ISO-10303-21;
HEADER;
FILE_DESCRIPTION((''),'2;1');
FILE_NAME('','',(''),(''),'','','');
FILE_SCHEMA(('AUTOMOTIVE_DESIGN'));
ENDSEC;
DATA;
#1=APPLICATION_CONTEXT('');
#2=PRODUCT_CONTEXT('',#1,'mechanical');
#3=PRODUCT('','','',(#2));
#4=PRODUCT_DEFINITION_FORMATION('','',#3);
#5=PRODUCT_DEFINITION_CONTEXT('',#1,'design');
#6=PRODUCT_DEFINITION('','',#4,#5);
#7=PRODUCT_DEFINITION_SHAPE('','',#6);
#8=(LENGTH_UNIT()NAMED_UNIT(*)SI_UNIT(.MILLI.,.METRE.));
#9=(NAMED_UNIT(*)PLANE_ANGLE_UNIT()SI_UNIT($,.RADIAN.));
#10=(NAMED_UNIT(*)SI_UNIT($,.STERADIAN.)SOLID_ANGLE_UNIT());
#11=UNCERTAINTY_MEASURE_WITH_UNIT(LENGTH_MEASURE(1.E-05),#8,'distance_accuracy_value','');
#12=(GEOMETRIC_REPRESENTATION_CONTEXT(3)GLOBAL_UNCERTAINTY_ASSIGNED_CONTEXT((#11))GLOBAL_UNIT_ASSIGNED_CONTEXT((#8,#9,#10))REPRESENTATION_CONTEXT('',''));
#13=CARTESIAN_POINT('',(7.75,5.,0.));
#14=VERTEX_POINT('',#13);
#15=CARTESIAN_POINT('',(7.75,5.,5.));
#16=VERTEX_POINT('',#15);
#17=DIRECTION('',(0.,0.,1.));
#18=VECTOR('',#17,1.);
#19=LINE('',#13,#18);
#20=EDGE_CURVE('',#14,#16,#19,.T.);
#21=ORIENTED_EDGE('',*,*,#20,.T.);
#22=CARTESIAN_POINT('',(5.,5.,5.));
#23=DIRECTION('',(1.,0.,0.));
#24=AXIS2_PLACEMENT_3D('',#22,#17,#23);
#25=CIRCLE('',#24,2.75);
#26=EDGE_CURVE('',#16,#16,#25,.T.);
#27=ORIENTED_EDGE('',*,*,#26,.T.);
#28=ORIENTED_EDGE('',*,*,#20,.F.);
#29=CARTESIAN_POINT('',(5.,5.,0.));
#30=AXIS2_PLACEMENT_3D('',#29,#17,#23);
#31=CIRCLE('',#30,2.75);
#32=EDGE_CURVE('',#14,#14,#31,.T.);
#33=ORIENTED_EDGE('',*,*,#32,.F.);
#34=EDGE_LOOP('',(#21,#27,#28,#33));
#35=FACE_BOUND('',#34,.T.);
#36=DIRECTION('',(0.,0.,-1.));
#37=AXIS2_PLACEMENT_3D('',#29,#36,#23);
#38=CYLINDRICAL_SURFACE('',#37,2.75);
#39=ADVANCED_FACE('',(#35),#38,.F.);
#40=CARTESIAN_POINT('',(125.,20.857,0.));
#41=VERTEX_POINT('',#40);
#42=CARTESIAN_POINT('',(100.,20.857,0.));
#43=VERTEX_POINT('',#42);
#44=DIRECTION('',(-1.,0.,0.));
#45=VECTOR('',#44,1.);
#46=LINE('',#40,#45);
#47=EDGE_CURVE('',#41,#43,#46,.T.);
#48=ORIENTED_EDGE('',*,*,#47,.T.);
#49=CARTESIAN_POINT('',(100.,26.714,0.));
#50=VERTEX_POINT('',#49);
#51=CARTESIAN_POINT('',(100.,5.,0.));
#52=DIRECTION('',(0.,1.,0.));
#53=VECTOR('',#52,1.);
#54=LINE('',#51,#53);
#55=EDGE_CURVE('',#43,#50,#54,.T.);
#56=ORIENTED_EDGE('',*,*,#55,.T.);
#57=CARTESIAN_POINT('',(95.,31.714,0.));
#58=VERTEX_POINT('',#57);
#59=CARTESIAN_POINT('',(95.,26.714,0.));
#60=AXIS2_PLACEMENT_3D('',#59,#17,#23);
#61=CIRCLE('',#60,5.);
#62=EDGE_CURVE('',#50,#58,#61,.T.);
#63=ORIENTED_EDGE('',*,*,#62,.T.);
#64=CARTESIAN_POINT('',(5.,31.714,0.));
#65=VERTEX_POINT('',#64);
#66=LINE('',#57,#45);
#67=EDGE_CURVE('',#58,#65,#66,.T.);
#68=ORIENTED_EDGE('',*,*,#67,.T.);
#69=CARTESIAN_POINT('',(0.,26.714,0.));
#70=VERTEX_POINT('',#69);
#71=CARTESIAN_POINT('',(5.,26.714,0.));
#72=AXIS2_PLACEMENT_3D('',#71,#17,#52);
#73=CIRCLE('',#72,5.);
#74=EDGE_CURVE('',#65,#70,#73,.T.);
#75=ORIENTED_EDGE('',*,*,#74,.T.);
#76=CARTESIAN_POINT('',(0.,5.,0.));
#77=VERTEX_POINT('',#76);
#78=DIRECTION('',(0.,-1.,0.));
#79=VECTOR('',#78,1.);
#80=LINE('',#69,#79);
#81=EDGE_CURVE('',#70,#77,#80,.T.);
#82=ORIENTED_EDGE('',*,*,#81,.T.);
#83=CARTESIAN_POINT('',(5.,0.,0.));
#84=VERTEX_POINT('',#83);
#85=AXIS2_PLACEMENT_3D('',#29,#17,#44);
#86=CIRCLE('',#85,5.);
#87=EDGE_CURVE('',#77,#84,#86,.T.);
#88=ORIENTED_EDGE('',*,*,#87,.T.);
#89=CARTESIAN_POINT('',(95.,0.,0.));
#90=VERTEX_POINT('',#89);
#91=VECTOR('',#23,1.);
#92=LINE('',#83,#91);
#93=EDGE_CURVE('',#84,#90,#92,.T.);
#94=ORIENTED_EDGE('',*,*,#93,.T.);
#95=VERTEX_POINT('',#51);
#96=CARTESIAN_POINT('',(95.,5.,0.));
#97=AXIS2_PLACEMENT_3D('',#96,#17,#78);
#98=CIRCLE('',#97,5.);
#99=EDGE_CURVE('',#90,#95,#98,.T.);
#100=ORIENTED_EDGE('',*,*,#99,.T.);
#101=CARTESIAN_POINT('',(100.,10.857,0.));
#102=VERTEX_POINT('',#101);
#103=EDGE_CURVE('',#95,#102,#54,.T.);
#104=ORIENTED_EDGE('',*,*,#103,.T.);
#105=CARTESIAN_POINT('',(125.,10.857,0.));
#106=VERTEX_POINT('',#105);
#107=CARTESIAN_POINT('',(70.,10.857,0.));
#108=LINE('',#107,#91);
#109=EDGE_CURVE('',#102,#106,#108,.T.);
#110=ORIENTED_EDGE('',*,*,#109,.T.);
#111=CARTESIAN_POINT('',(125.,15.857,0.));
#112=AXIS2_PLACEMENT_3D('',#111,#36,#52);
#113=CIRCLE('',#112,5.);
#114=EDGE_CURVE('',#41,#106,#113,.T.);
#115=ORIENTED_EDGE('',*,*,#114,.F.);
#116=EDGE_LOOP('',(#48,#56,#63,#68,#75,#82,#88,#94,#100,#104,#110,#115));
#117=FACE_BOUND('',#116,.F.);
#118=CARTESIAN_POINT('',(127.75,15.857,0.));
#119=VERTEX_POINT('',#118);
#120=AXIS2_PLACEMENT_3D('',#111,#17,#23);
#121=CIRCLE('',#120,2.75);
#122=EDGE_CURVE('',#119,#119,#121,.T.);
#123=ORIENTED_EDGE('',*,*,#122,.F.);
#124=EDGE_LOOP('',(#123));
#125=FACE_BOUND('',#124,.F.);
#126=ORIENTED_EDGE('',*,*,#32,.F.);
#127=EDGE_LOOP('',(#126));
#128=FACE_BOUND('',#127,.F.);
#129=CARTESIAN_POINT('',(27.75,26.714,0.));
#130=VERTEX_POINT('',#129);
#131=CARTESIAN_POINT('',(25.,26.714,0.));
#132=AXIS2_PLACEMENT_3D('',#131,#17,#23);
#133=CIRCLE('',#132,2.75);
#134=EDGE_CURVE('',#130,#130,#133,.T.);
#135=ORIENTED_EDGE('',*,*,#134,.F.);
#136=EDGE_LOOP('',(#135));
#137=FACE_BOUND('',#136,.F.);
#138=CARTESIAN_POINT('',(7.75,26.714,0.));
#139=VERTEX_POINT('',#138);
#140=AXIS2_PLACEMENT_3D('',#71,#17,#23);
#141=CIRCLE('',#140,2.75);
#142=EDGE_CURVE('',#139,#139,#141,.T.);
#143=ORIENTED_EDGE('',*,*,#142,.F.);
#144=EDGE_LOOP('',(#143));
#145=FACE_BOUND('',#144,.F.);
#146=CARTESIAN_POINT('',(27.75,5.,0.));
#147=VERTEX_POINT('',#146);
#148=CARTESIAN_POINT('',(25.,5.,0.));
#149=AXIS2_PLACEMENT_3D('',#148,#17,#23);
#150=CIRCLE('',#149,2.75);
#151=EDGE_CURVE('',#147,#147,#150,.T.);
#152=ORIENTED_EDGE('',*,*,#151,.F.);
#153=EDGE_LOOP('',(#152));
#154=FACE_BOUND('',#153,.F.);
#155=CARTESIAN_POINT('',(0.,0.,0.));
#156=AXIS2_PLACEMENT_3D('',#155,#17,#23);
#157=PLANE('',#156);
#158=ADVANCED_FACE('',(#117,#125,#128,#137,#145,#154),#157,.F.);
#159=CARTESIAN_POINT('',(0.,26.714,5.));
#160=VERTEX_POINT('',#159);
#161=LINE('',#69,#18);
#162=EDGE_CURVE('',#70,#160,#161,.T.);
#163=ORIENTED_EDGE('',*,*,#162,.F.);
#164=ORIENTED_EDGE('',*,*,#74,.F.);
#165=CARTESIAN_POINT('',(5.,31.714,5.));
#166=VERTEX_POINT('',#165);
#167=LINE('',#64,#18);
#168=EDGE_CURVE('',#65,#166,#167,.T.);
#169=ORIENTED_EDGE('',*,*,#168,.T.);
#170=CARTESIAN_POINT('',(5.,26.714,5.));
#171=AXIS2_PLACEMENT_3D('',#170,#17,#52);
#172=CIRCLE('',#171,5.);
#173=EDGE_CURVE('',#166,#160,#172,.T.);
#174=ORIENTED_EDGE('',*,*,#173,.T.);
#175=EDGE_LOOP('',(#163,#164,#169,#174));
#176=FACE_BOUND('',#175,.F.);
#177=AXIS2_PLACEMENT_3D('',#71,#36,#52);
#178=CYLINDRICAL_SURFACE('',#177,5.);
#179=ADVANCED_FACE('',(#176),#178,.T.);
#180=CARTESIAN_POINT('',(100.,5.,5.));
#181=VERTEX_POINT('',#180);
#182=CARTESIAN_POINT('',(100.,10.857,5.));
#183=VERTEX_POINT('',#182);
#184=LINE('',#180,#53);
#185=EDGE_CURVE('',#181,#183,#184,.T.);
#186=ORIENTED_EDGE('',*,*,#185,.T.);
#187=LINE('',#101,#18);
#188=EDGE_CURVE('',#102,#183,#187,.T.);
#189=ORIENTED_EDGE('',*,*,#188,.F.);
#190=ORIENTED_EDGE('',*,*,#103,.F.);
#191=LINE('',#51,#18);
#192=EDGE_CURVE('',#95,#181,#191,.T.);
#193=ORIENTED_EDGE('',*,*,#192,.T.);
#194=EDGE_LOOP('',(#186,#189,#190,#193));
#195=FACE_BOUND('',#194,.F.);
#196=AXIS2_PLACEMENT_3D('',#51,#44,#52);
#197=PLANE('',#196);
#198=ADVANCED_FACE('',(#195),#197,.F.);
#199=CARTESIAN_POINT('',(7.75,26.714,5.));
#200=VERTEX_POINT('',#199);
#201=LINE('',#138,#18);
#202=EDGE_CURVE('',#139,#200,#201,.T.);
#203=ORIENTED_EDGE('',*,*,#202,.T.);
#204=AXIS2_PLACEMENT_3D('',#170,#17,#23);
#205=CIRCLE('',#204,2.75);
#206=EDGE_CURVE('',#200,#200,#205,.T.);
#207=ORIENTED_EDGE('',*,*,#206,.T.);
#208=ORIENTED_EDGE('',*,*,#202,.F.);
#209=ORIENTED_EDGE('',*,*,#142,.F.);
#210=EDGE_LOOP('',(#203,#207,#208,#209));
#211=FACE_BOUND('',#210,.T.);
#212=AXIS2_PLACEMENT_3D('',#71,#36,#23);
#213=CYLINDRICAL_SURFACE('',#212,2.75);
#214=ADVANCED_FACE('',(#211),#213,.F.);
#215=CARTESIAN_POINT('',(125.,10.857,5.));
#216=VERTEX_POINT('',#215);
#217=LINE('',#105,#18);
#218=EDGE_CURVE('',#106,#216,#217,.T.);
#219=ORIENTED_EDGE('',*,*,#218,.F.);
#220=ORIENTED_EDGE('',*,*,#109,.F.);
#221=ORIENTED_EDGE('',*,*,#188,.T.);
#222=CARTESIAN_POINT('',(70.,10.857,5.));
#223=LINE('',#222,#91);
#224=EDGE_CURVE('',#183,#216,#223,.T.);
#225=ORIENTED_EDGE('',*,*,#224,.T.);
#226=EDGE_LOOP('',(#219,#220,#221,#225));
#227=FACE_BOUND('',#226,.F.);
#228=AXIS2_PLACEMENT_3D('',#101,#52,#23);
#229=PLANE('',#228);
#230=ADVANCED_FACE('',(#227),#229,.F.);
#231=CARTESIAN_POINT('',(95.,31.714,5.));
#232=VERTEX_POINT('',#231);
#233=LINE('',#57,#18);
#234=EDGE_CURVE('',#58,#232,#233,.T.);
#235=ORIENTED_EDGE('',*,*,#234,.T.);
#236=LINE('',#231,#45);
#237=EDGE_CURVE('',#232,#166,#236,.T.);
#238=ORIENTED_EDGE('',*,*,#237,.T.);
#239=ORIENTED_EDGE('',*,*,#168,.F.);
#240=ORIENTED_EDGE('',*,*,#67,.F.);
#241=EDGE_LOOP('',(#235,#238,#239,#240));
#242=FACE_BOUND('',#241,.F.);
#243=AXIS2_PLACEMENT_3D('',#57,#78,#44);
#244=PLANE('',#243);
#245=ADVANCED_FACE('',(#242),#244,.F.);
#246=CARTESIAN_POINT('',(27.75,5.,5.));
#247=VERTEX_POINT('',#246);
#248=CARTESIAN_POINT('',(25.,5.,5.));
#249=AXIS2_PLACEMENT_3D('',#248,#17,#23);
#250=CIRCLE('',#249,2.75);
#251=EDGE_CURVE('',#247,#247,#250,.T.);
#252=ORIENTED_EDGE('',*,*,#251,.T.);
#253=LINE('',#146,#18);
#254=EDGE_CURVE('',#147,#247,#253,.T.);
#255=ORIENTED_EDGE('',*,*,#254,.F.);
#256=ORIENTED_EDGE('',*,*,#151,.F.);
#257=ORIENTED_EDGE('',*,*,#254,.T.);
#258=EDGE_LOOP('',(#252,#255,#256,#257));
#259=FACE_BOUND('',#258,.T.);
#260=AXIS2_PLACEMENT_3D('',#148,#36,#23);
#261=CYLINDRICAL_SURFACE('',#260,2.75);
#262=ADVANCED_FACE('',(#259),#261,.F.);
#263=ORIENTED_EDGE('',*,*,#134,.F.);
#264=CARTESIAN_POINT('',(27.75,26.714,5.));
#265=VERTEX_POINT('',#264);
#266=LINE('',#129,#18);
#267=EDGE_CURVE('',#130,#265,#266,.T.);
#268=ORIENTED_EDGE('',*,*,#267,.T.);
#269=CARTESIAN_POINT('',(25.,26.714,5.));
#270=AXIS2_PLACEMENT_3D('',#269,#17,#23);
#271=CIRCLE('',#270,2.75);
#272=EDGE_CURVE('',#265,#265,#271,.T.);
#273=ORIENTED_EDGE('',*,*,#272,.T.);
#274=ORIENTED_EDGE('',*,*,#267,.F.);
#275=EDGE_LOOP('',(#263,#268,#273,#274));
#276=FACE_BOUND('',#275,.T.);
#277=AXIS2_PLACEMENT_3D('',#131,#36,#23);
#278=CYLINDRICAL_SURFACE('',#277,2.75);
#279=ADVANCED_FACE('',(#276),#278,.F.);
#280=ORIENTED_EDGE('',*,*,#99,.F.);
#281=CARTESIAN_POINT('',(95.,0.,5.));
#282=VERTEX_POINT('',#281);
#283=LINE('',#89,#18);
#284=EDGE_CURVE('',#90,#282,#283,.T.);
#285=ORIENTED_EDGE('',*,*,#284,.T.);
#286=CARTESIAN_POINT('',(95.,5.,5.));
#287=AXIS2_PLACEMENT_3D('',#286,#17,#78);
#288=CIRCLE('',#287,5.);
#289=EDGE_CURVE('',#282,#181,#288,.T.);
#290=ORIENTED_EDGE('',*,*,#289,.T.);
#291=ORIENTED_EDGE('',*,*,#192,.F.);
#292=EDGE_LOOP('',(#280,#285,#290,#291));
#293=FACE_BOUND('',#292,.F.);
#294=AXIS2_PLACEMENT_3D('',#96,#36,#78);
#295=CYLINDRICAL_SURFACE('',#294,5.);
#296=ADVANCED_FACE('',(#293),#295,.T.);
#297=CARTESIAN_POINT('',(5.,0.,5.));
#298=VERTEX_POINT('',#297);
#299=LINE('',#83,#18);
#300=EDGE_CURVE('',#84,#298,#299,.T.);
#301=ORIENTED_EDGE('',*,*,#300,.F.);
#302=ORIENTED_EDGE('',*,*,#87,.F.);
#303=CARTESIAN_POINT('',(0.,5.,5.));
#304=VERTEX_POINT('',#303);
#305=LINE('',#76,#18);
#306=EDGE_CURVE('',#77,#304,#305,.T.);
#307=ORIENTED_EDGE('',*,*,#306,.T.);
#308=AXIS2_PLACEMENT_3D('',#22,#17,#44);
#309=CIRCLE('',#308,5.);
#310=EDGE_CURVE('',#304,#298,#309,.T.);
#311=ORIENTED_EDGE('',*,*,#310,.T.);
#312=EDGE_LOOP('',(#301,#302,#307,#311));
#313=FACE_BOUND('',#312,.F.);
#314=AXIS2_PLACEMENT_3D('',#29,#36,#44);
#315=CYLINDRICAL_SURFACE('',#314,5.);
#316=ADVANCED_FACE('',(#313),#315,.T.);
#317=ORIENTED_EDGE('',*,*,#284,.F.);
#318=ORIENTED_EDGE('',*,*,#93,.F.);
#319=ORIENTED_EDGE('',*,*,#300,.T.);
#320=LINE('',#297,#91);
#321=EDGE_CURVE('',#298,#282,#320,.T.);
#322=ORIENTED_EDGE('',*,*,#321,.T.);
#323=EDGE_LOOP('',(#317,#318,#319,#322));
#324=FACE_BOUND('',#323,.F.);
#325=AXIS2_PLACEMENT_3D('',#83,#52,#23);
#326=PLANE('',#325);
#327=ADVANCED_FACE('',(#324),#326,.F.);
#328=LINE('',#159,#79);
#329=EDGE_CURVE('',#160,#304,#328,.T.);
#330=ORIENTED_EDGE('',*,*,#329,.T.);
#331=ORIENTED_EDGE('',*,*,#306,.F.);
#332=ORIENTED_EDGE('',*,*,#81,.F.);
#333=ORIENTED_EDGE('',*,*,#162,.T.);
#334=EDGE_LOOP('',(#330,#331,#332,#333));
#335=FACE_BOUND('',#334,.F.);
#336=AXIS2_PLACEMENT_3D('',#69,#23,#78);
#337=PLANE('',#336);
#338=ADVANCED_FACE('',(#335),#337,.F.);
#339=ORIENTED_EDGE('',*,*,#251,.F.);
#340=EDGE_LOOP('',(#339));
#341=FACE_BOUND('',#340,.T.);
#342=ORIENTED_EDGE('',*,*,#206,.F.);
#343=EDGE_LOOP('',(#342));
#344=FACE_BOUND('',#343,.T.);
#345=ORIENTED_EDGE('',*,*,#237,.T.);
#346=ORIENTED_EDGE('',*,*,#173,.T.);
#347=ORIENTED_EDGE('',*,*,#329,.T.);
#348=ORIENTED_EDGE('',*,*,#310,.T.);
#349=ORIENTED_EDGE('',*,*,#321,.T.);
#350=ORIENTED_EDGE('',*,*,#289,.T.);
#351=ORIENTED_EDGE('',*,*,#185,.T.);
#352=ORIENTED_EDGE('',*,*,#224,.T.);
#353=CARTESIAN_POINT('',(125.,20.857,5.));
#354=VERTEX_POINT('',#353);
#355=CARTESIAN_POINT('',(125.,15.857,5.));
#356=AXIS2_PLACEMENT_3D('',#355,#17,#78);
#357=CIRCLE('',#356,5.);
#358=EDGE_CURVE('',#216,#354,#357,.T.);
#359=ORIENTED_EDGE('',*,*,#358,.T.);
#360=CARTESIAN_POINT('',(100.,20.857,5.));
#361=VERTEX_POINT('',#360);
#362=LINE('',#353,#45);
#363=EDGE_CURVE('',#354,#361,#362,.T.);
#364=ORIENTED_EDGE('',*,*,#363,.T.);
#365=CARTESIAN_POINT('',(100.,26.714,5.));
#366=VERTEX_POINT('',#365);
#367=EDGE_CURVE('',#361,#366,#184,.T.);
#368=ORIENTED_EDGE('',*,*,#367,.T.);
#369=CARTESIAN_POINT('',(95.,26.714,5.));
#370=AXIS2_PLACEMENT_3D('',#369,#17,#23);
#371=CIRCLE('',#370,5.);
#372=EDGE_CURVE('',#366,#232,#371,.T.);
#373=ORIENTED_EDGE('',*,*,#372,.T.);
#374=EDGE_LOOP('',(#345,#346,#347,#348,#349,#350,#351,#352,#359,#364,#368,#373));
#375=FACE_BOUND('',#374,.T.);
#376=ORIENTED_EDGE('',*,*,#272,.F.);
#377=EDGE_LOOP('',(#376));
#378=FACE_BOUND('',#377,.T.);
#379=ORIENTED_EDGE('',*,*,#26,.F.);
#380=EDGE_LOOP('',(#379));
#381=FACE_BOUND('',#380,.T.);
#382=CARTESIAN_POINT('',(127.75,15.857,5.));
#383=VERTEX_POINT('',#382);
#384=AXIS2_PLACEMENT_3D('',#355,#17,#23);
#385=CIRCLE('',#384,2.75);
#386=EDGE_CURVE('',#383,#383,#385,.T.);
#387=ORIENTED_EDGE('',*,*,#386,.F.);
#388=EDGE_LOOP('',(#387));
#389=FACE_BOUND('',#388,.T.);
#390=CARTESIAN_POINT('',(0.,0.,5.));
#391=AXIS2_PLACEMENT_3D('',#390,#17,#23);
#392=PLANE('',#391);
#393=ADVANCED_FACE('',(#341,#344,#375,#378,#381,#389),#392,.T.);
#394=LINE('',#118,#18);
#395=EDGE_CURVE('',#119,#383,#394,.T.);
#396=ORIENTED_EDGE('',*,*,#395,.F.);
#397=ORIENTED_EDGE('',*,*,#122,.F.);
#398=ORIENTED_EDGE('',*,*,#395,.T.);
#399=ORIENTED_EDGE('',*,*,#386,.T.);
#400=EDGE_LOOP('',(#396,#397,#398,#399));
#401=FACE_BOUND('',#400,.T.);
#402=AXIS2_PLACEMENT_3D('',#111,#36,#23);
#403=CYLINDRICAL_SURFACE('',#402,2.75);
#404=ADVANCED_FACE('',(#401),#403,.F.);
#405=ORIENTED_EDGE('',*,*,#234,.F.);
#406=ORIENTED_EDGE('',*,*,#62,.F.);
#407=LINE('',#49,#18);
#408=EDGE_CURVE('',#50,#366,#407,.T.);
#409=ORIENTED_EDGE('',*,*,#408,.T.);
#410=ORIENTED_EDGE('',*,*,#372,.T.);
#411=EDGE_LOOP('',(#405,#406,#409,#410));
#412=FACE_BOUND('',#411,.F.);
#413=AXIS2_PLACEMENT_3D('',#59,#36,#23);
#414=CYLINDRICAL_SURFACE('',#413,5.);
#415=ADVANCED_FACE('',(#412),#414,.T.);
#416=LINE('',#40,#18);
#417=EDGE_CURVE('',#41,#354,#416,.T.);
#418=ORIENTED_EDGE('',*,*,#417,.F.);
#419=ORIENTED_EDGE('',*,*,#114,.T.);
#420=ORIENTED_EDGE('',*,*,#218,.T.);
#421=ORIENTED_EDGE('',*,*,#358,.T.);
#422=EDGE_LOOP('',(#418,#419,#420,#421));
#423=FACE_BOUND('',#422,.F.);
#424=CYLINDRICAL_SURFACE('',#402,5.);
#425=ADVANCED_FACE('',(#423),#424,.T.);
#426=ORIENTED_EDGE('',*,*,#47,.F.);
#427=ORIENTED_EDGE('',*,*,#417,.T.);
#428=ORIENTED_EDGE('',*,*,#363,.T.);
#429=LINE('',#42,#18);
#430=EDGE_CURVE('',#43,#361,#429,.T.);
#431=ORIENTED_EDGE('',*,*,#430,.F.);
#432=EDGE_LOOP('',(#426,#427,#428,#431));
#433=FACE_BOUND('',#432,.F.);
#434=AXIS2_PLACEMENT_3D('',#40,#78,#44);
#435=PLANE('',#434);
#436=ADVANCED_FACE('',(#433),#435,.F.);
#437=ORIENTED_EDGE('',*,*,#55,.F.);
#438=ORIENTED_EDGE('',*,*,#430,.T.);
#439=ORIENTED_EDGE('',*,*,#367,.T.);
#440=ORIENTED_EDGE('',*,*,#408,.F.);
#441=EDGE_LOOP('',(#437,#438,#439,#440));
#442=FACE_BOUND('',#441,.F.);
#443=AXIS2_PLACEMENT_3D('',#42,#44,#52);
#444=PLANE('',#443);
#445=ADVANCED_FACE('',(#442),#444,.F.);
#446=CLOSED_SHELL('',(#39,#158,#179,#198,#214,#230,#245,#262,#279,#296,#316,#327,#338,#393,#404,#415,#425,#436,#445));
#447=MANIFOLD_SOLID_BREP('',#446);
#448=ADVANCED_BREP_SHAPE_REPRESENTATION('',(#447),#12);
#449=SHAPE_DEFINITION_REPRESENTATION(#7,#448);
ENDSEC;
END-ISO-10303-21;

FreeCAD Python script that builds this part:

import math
import FreeCAD as App
import Part
import Sketcher

doc = App.newDocument("Part")
body = doc.addObject("PartDesign::Body", "Body")

sketch1 = body.newObject("Sketcher::SketchObject", "Sketch")
sketch1.AttachmentSupport = (doc.getObject("XY_Plane"), [""])
sketch1.MapMode = "FlatFace"
sketch1.addGeometry([
    Part.ArcOfCircle(Part.Circle(App.Vector(5, 5, 0), App.Vector(0, 0, 1), 5), math.radians(180), math.radians(270)),
    Part.LineSegment(App.Vector(5, 0, 0), App.Vector(95, 0, 0)),
    Part.ArcOfCircle(Part.Circle(App.Vector(95, 5, 0), App.Vector(0, 0, 1), 5), math.radians(-90), math.radians(0)),
    Part.LineSegment(App.Vector(100, 5, 0), App.Vector(100, 10.857, 0)),
    Part.LineSegment(App.Vector(100, 10.857, 0), App.Vector(125, 10.857, 0)),
    Part.ArcOfCircle(Part.Circle(App.Vector(125, 15.857, 0), App.Vector(0, 0, 1), 5), math.radians(-90), math.radians(90)),
    Part.LineSegment(App.Vector(125, 20.857, 0), App.Vector(100, 20.857, 0)),
    Part.LineSegment(App.Vector(100, 20.857, 0), App.Vector(100, 26.714, 0)),
    Part.ArcOfCircle(Part.Circle(App.Vector(95, 26.714, 0), App.Vector(0, 0, 1), 5), math.radians(0), math.radians(90)),
    Part.LineSegment(App.Vector(95, 31.714, 0), App.Vector(5, 31.714, 0)),
    Part.ArcOfCircle(Part.Circle(App.Vector(5, 26.714, 0), App.Vector(0, 0, 1), 5), math.radians(90), math.radians(180)),
    Part.LineSegment(App.Vector(0, 26.714, 0), App.Vector(0, 5, 0)),
    Part.Circle(App.Vector(5, 5, 0), App.Vector(0, 0, 1), 2.75),
    Part.Circle(App.Vector(25, 5, 0), App.Vector(0, 0, 1), 2.75),
    Part.Circle(App.Vector(5, 26.714, 0), App.Vector(0, 0, 1), 2.75),
    Part.Circle(App.Vector(25, 26.714, 0), App.Vector(0, 0, 1), 2.75),
    Part.Circle(App.Vector(125, 15.857, 0), App.Vector(0, 0, 1), 2.75),
], False)
sketch1.addConstraint([
    Sketcher.Constraint("Tangent", 0, 2, 1, 1),
    Sketcher.Constraint("Tangent", 1, 2, 2, 1),
    Sketcher.Constraint("Tangent", 2, 2, 3, 1),
    Sketcher.Constraint("Coincident", 3, 2, 4, 1),
    Sketcher.Constraint("Tangent", 4, 2, 5, 1),
    Sketcher.Constraint("Tangent", 5, 2, 6, 1),
    Sketcher.Constraint("Coincident", 6, 2, 7, 1),
    Sketcher.Constraint("Tangent", 7, 2, 8, 1),
    Sketcher.Constraint("Tangent", 8, 2, 9, 1),
    Sketcher.Constraint("Tangent", 9, 2, 10, 1),
    Sketcher.Constraint("Tangent", 10, 2, 11, 1),
    Sketcher.Constraint("Tangent", 11, 2, 0, 1),
    Sketcher.Constraint("Horizontal", 1),
    Sketcher.Constraint("Vertical", 3),
    Sketcher.Constraint("Horizontal", 4),
    Sketcher.Constraint("Horizontal", 6),
    Sketcher.Constraint("Vertical", 7),
    Sketcher.Constraint("Horizontal", 9),
    Sketcher.Constraint("Vertical", 11),
    Sketcher.Constraint("Coincident", 12, 3, 0, 3),
    Sketcher.Constraint("Coincident", 14, 3, 10, 3),
    Sketcher.Constraint("Coincident", 16, 3, 5, 3),
    Sketcher.Constraint("Equal", 0, 2),
    Sketcher.Constraint("Equal", 2, 5),
    Sketcher.Constraint("Equal", 5, 8),
    Sketcher.Constraint("Equal", 8, 10),
    Sketcher.Constraint("Equal", 12, 13),
    Sketcher.Constraint("Equal", 13, 14),
    Sketcher.Constraint("Equal", 14, 15),
    Sketcher.Constraint("Equal", 15, 16),
    Sketcher.Constraint("PointOnObject", 0, 2, -1),
    Sketcher.Constraint("PointOnObject", 10, 2, -2),
    Sketcher.Constraint("Horizontal", 12, 3, 13, 3),
    Sketcher.Constraint("Horizontal", 14, 3, 15, 3),
    Sketcher.Constraint("Vertical", 2, 3, 8, 3),
    Sketcher.Constraint("Vertical", 13, 3, 15, 3),
    Sketcher.Constraint("Equal", 3, 7),
    Sketcher.Constraint("Radius", 0, 5.0),
    Sketcher.Constraint("Diameter", 12, 5.5),
    Sketcher.Constraint("DistanceX", -1, 1, 2, 2, 100.0),
    Sketcher.Constraint("DistanceX", 0, 3, 13, 3, 20.0),
    Sketcher.Constraint("DistanceX", 13, 3, 16, 3, 100.0),
    Sketcher.Constraint("DistanceY", 11, 2, 11, 1, 21.714),
])
pad1 = body.newObject("PartDesign::Pad", "Pad")
pad1.Profile = sketch1
pad1.Length = 5

doc.recompute()
